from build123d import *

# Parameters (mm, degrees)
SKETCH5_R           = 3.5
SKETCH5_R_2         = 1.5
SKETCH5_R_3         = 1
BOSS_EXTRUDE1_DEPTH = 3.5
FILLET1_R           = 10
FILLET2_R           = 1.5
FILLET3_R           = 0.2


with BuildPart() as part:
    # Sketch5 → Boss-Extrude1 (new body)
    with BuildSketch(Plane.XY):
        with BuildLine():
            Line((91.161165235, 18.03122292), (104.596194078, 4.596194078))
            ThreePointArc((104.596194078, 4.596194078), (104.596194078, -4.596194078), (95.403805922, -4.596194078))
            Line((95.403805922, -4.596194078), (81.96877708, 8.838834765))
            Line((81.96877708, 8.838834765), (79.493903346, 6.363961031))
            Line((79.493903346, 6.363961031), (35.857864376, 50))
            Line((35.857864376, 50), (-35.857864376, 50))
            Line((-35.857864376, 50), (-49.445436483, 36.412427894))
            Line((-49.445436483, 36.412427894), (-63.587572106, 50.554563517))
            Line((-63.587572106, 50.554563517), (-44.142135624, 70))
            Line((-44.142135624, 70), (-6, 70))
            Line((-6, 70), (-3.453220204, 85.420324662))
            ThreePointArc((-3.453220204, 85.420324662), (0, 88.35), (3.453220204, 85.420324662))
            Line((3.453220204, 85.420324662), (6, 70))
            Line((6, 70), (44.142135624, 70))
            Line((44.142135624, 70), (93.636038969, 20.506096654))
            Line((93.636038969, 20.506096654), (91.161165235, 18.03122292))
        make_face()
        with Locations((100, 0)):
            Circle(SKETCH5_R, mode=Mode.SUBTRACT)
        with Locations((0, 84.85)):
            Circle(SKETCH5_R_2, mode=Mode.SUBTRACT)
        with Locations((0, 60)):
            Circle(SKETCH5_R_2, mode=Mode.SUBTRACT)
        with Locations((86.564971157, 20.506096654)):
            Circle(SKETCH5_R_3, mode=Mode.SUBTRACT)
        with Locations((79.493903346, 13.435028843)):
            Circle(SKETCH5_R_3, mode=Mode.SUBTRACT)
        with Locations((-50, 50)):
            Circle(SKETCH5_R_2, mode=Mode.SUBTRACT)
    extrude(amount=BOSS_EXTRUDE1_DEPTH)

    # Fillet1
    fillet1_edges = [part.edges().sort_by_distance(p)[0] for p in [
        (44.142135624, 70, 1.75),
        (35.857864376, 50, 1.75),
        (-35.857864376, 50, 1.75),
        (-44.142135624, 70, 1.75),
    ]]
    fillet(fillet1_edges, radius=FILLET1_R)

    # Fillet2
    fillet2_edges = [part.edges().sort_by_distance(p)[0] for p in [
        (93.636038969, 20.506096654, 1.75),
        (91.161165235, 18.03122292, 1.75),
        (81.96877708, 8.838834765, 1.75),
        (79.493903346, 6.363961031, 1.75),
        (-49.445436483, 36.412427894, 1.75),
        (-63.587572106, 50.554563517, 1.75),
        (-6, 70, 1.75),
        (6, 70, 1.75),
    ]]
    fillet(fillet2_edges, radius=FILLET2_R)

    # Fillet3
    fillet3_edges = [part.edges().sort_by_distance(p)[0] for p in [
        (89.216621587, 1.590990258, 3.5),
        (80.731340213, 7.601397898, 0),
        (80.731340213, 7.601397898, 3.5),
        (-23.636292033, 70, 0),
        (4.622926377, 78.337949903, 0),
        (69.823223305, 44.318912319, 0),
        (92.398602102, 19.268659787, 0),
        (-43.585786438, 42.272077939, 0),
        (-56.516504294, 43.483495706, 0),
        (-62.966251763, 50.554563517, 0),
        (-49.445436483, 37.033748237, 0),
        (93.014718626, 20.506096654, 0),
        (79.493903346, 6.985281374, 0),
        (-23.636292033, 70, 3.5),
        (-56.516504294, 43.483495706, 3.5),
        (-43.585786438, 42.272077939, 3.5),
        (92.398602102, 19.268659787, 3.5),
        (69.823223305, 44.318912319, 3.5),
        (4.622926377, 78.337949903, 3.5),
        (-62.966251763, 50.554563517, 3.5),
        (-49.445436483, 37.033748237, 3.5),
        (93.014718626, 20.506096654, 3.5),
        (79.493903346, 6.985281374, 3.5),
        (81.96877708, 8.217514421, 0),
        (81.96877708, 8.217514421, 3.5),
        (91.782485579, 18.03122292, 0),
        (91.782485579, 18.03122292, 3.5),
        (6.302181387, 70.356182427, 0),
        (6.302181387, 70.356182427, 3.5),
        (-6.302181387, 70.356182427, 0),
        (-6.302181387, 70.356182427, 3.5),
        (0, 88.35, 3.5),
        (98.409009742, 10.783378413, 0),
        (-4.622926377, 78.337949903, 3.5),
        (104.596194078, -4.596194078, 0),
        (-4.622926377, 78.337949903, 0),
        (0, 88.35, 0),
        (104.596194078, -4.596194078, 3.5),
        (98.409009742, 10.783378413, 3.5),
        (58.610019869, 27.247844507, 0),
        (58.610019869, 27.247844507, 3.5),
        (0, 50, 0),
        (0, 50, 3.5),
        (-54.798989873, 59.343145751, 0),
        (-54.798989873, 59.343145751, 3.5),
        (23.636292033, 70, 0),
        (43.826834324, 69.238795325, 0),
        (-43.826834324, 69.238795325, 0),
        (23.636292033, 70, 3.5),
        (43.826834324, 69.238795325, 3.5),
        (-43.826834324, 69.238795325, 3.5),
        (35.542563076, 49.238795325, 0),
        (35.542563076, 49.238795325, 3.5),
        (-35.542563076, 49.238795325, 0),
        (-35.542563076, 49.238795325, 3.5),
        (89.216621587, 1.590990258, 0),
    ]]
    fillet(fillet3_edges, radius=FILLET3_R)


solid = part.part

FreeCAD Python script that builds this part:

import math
import FreeCAD as App
import Part
import Sketcher

V = App.Vector
Q = App.Units.Quantity


def edges_at(feature, points):
    """Names of the edges that pass closest to the given points."""
    edges = feature.Shape.Edges
    near = lambda p: min(range(len(edges)), key=lambda i: edges[i].distToShape(Part.Vertex(*p))[0])
    return sorted({f"Edge{near(p) + 1}" for p in points})

doc = App.newDocument("Part")
body = doc.addObject("PartDesign::Body", "Body")

# Sketch on XY plane
sketch1 = doc.addObject("Sketcher::SketchObject", "Sketch")
body.addObject(sketch1)
sketch1.AttachmentSupport = (doc.XY_Plane, [""])
sketch1.MapMode = "FlatFace"
sketch1.addGeometry([
    Part.LineSegment(V(104.596194, 4.596194, 0), V(91.161165, 18.031223, 0)),  # 0
    Part.LineSegment(V(91.161165, 18.031223, 0), V(93.636039, 20.506097, 0)),  # 1
    Part.LineSegment(V(93.636039, 20.506097, 0), V(44.142136, 70, 0)),  # 2
    Part.LineSegment(V(44.142136, 70, 0), V(6, 70, 0)),  # 3
    Part.LineSegment(V(6, 70, 0), V(3.45322, 85.420325, 0)),  # 4
    Part.ArcOfCircle(Part.Circle(V(0, 84.85, 0), V(0, 0, 1), 3.5), math.radians(9.378161), math.radians(170.621839)),  # 5
    Part.LineSegment(V(-3.45322, 85.420325, 0), V(-6, 70, 0)),  # 6
    Part.LineSegment(V(-6, 70, 0), V(-44.142136, 70, 0)),  # 7
    Part.LineSegment(V(-44.142136, 70, 0), V(-63.587572, 50.554564, 0)),  # 8
    Part.LineSegment(V(-63.587572, 50.554564, 0), V(-49.445436, 36.412428, 0)),  # 9
    Part.LineSegment(V(-49.445436, 36.412428, 0), V(-35.857864, 50, 0)),  # 10
    Part.LineSegment(V(-35.857864, 50, 0), V(35.857864, 50, 0)),  # 11
    Part.LineSegment(V(35.857864, 50, 0), V(79.493903, 6.363961, 0)),  # 12
    Part.LineSegment(V(79.493903, 6.363961, 0), V(81.968777, 8.838835, 0)),  # 13
    Part.LineSegment(V(81.968777, 8.838835, 0), V(95.403806, -4.596194, 0)),  # 14
    Part.ArcOfCircle(Part.Circle(V(100, 0, 0), V(0, 0, 1), 6.5), math.radians(-135), math.radians(45)),  # 15
    Part.Circle(V(100, 0, 0), V(0, 0, 1), 3.5),  # 16
    Part.Circle(V(79.493903, 13.435029, 0), V(0, 0, 1), 1),  # 17
    Part.Circle(V(86.564971, 20.506097, 0), V(0, 0, 1), 1),  # 18
    Part.Circle(V(0, 60, 0), V(0, 0, 1), 1.5),  # 19
    Part.Circle(V(-50, 50, 0), V(0, 0, 1), 1.5),  # 20
    Part.Circle(V(0, 84.85, 0), V(0, 0, 1), 1.5),  # 21
], False)
sketch1.addConstraint([
    Sketcher.Constraint("Coincident", 0, 2, 1, 1),
    Sketcher.Constraint("Coincident", 1, 2, 2, 1),
    Sketcher.Constraint("Coincident", 2, 2, 3, 1),
    Sketcher.Constraint("Coincident", 3, 2, 4, 1),
    Sketcher.Constraint("Tangent", 4, 2, 5, 1),
    Sketcher.Constraint("Tangent", 5, 2, 6, 1),
    Sketcher.Constraint("Coincident", 6, 2, 7, 1),
    Sketcher.Constraint("Coincident", 7, 2, 8, 1),
    Sketcher.Constraint("Coincident", 8, 2, 9, 1),
    Sketcher.Constraint("Coincident", 9, 2, 10, 1),
    Sketcher.Constraint("Coincident", 10, 2, 11, 1),
    Sketcher.Constraint("Coincident", 11, 2, 12, 1),
    Sketcher.Constraint("Coincident", 12, 2, 13, 1),
    Sketcher.Constraint("Coincident", 13, 2, 14, 1),
    Sketcher.Constraint("Tangent", 14, 2, 15, 1),
    Sketcher.Constraint("Tangent", 15, 2, 0, 1),
    Sketcher.Constraint("Horizontal", 3),
    Sketcher.Constraint("Horizontal", 7),
    Sketcher.Constraint("Horizontal", 11),
    Sketcher.Constraint("Coincident", 16, 3, 15, 3),
    Sketcher.Constraint("Coincident", 21, 3, 5, 3),
    Sketcher.Constraint("Equal", 5, 16),
    Sketcher.Constraint("Equal", 17, 18),
    Sketcher.Constraint("Equal", 19, 20),
    Sketcher.Constraint("Equal", 20, 21),
    Sketcher.Constraint("Symmetric", 4, 2, 5, 2, -2),
    Sketcher.Constraint("Symmetric", 2, 2, 7, 2, -2),
    Sketcher.Constraint("PointOnObject", 15, 3, -1),
    Sketcher.Constraint("PointOnObject", 19, 3, -2),
    Sketcher.Constraint("Perpendicular", 0, 1),
    Sketcher.Constraint("Perpendicular", 1, 2),
    Sketcher.Constraint("Perpendicular", 2, 8),
    Sketcher.Constraint("Perpendicular", 8, 9),
    Sketcher.Constraint("Perpendicular", 9, 10),
    Sketcher.Constraint("Perpendicular", 10, 12),
    Sketcher.Constraint("Perpendicular", 12, 13),
    Sketcher.Constraint("Perpendicular", 13, 14),
    Sketcher.Constraint("Horizontal", 18, 3, 1, 2),
    Sketcher.Constraint("Horizontal", 20, 3, 10, 2),
    Sketcher.Constraint("Vertical", 17, 3, 12, 2),
    Sketcher.Constraint("Equal", 1, 13),
    Sketcher.Constraint("Equal", 0, 14),
    Sketcher.Constraint("Diameter", 16, 7.0),
    Sketcher.Constraint("Diameter", 17, 2.0),
    Sketcher.Constraint("Diameter", 19, 3.0),
    Sketcher.Constraint("Radius", 15, 6.5),
    Sketcher.Constraint("Angle", 0, Q("135 deg")),
    Sketcher.Constraint("Distance", 0, 19.0),
    Sketcher.Constraint("Distance", 9, 20.0),
    Sketcher.Constraint("DistanceX", -1, 1, 15, 3, 100.0),
    Sketcher.Constraint("DistanceY", -1, 1, 19, 3, 60.0),
    Sketcher.Constraint("DistanceX", 20, 3, -1, 1, 50.0),
    Sketcher.Constraint("DistanceY", -1, 1, 20, 3, 50.0),
    Sketcher.Constraint("DistanceY", -1, 1, 2, 2, 70.0),
    Sketcher.Constraint("DistanceX", -1, 1, 3, 2, 6.0),
    Sketcher.Constraint("Distance", 1, 3.5),
    Sketcher.Constraint("Distance", 8, 27.5),
    Sketcher.Constraint("DistanceY", -1, 1, 5, 3, 84.85),
    Sketcher.Constraint("DistanceY", -1, 1, 17, 3, 13.435029),
    Sketcher.Constraint("DistanceX", -1, 1, 18, 3, 86.564971),
])
pad1 = doc.addObject("PartDesign::Pad", "Pad")
body.addObject(pad1)
pad1.Profile = sketch1
pad1.Length = 3.5
doc.recompute()

fillet = doc.addObject("PartDesign::Fillet", "Fillet")
body.addObject(fillet)
fillet.Base = (pad1, edges_at(pad1, [
    (44.142, 70, 1.75),
    (35.858, 50, 1.75),
    (-35.858, 50, 1.75),
    (-44.142, 70, 1.75),
]))
fillet.Radius = 10
doc.recompute()

fillet2 = doc.addObject("PartDesign::Fillet", "Fillet001")
body.addObject(fillet2)
fillet2.Base = (fillet, edges_at(fillet, [
    (93.636, 20.506, 1.75),
    (91.161, 18.031, 1.75),
    (81.969, 8.839, 1.75),
    (79.494, 6.364, 1.75),
    (-49.445, 36.412, 1.75),
    (-63.588, 50.555, 1.75),
    (-6, 70, 1.75),
    (6, 70, 1.75),
]))
fillet2.Radius = 1.5
doc.recompute()

fillet3 = doc.addObject("PartDesign::Fillet", "Fillet002")
body.addObject(fillet3)
fillet3.Base = (fillet2, edges_at(fillet2, [
    (89.217, 1.591, 3.5),
    (80.731, 7.601, 0),
    (80.731, 7.601, 3.5),
    (-23.636, 70, 0),
    (4.623, 78.338, 0),
    (69.823, 44.319, 0),
    (92.399, 19.269, 0),
    (-43.586, 42.272, 0),
    (-56.517, 43.483, 0),
    (-62.966, 50.555, 0),
    (-49.445, 37.034, 0),
    (93.015, 20.506, 0),
    (79.494, 6.985, 0),
    (-23.636, 70, 3.5),
    (-56.517, 43.483, 3.5),
    (-43.586, 42.272, 3.5),
    (92.399, 19.269, 3.5),
    (69.823, 44.319, 3.5),
    (4.623, 78.338, 3.5),
    (-62.966, 50.555, 3.5),
    (-49.445, 37.034, 3.5),
    (93.015, 20.506, 3.5),
    (79.494, 6.985, 3.5),
    (81.969, 8.218, 0),
    (81.969, 8.218, 3.5),
    (91.782, 18.031, 0),
    (91.782, 18.031, 3.5),
    (6.302, 70.356, 0),
    (6.302, 70.356, 3.5),
    (-6.302, 70.356, 0),
    (-6.302, 70.356, 3.5),
    (0, 88.35, 3.5),
    (98.409, 10.783, 0),
    (-4.623, 78.338, 3.5),
    (104.596, -4.596, 0),
    (-4.623, 78.338, 0),
    (0, 88.35, 0),
    (104.596, -4.596, 3.5),
    (98.409, 10.783, 3.5),
    (58.61, 27.248, 0),
    (58.61, 27.248, 3.5),
    (0, 50, 0),
    (0, 50, 3.5),
    (-54.799, 59.343, 0),
    (-54.799, 59.343, 3.5),
    (23.636, 70, 0),
    (43.827, 69.239, 0),
    (-43.827, 69.239, 0),
    (23.636, 70, 3.5),
    (43.827, 69.239, 3.5),
    (-43.827, 69.239, 3.5),
    (35.543, 49.239, 0),
    (35.543, 49.239, 3.5),
    (-35.543, 49.239, 0),
    (-35.543, 49.239, 3.5),
    (89.217, 1.591, 0),
]))
fillet3.Radius = 0.2

doc.recompute()
